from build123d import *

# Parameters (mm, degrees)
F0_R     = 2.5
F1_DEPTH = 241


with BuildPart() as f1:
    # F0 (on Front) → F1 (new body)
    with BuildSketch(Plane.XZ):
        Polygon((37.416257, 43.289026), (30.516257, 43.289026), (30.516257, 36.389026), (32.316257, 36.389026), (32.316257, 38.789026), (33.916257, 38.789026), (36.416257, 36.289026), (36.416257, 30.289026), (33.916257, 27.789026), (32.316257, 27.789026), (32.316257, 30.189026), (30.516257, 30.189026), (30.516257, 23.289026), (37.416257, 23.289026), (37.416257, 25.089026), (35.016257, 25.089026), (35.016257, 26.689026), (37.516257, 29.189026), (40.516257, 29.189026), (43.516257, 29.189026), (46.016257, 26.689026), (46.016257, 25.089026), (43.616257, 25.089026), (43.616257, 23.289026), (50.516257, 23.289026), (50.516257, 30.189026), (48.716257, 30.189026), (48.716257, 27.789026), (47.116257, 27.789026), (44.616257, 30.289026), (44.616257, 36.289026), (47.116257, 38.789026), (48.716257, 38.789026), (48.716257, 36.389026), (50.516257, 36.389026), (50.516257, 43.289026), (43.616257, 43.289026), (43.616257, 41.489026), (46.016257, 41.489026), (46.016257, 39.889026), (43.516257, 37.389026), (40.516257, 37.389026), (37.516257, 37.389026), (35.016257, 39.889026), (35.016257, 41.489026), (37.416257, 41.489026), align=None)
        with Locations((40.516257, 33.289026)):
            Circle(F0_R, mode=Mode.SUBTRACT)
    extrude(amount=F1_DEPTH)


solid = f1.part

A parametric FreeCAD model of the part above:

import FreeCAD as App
import Part
import Sketcher
from FreeCAD import Vector
Q = App.Units.Quantity

doc = App.newDocument("Part")
body = doc.addObject("PartDesign::Body", "Body")

# Sketch on XZ plane
sketch1 = doc.addObject("Sketcher::SketchObject", "Sketch")
body.addObject(sketch1)
sketch1.AttachmentSupport = (doc.XZ_Plane, [""])
sketch1.MapMode = "FlatFace"
sketch1.addGeometry([
    Part.LineSegment(Vector(37.4, 43.3, 0), Vector(30.5, 43.3, 0)),  # 0
    Part.LineSegment(Vector(30.5, 43.3, 0), Vector(30.5, 36.4, 0)),  # 1
    Part.LineSegment(Vector(30.5, 36.4, 0), Vector(32.3, 36.4, 0)),  # 2
    Part.LineSegment(Vector(32.3, 36.4, 0), Vector(32.3, 38.8, 0)),  # 3
    Part.LineSegment(Vector(32.3, 38.8, 0), Vector(33.9, 38.8, 0)),  # 4
    Part.LineSegment(Vector(33.9, 38.8, 0), Vector(36.4, 36.3, 0)),  # 5
    Part.LineSegment(Vector(36.4, 36.3, 0), Vector(36.4, 30.3, 0)),  # 6
    Part.LineSegment(Vector(36.4, 30.3, 0), Vector(33.9, 27.8, 0)),  # 7
    Part.LineSegment(Vector(33.9, 27.8, 0), Vector(32.3, 27.8, 0)),  # 8
    Part.LineSegment(Vector(32.3, 27.8, 0), Vector(32.3, 30.2, 0)),  # 9
    Part.LineSegment(Vector(32.3, 30.2, 0), Vector(30.5, 30.2, 0)),  # 10
    Part.LineSegment(Vector(30.5, 30.2, 0), Vector(30.5, 23.3, 0)),  # 11
    Part.LineSegment(Vector(30.5, 23.3, 0), Vector(37.4, 23.3, 0)),  # 12
    Part.LineSegment(Vector(37.4, 23.3, 0), Vector(37.4, 25.1, 0)),  # 13
    Part.LineSegment(Vector(37.4, 25.1, 0), Vector(35, 25.1, 0)),  # 14
    Part.LineSegment(Vector(35, 25.1, 0), Vector(35, 26.7, 0)),  # 15
    Part.LineSegment(Vector(35, 26.7, 0), Vector(37.5, 29.2, 0)),  # 16
    Part.LineSegment(Vector(37.5, 29.2, 0), Vector(43.5, 29.2, 0)),  # 17
    Part.LineSegment(Vector(43.5, 29.2, 0), Vector(46, 26.7, 0)),  # 18
    Part.LineSegment(Vector(46, 26.7, 0), Vector(46, 25.1, 0)),  # 19
    Part.LineSegment(Vector(46, 25.1, 0), Vector(43.6, 25.1, 0)),  # 20
    Part.LineSegment(Vector(43.6, 25.1, 0), Vector(43.6, 23.3, 0)),  # 21
    Part.LineSegment(Vector(43.6, 23.3, 0), Vector(50.5, 23.3, 0)),  # 22
    Part.LineSegment(Vector(50.5, 23.3, 0), Vector(50.5, 30.2, 0)),  # 23
    Part.LineSegment(Vector(50.5, 30.2, 0), Vector(48.7, 30.2, 0)),  # 24
    Part.LineSegment(Vector(48.7, 30.2, 0), Vector(48.7, 27.8, 0)),  # 25
    Part.LineSegment(Vector(48.7, 27.8, 0), Vector(47.1, 27.8, 0)),  # 26
    Part.LineSegment(Vector(47.1, 27.8, 0), Vector(44.6, 30.3, 0)),  # 27
    Part.LineSegment(Vector(44.6, 30.3, 0), Vector(44.6, 36.3, 0)),  # 28
    Part.LineSegment(Vector(44.6, 36.3, 0), Vector(47.1, 38.8, 0)),  # 29
    Part.LineSegment(Vector(47.1, 38.8, 0), Vector(48.7, 38.8, 0)),  # 30
    Part.LineSegment(Vector(48.7, 38.8, 0), Vector(48.7, 36.4, 0)),  # 31
    Part.LineSegment(Vector(48.7, 36.4, 0), Vector(50.5, 36.4, 0)),  # 32
    Part.LineSegment(Vector(50.5, 36.4, 0), Vector(50.5, 43.3, 0)),  # 33
    Part.LineSegment(Vector(50.5, 43.3, 0), Vector(43.6, 43.3, 0)),  # 34
    Part.LineSegment(Vector(43.6, 43.3, 0), Vector(43.6, 41.5, 0)),  # 35
    Part.LineSegment(Vector(43.6, 41.5, 0), Vector(46, 41.5, 0)),  # 36
    Part.LineSegment(Vector(46, 41.5, 0), Vector(46, 39.9, 0)),  # 37
    Part.LineSegment(Vector(46, 39.9, 0), Vector(43.5, 37.4, 0)),  # 38
    Part.LineSegment(Vector(43.5, 37.4, 0), Vector(37.5, 37.4, 0)),  # 39
    Part.LineSegment(Vector(37.5, 37.4, 0), Vector(35, 39.9, 0)),  # 40
    Part.LineSegment(Vector(35, 39.9, 0), Vector(35, 41.5, 0)),  # 41
    Part.LineSegment(Vector(35, 41.5, 0), Vector(37.4, 41.5, 0)),  # 42
    Part.LineSegment(Vector(37.4, 41.5, 0), Vector(37.4, 43.3, 0)),  # 43
    Part.Circle(Vector(40.5, 33.3, 0), Vector(0, 0, 1), 2.5),  # 44
], False)
sketch1.addConstraint([
    Sketcher.Constraint("Coincident", 0, 2, 1, 1),
    Sketcher.Constraint("Coincident", 1, 2, 2, 1),
    Sketcher.Constraint("Coincident", 2, 2, 3, 1),
    Sketcher.Constraint("Coincident", 3, 2, 4, 1),
    Sketcher.Constraint("Coincident", 4, 2, 5, 1),
    Sketcher.Constraint("Coincident", 5, 2, 6, 1),
    Sketcher.Constraint("Coincident", 6, 2, 7, 1),
    Sketcher.Constraint("Coincident", 7, 2, 8, 1),
    Sketcher.Constraint("Coincident", 8, 2, 9, 1),
    Sketcher.Constraint("Coincident", 9, 2, 10, 1),
    Sketcher.Constraint("Coincident", 10, 2, 11, 1),
    Sketcher.Constraint("Coincident", 11, 2, 12, 1),
    Sketcher.Constraint("Coincident", 12, 2, 13, 1),
    Sketcher.Constraint("Coincident", 13, 2, 14, 1),
    Sketcher.Constraint("Coincident", 14, 2, 15, 1),
    Sketcher.Constraint("Coincident", 15, 2, 16, 1),
    Sketcher.Constraint("Coincident", 16, 2, 17, 1),
    Sketcher.Constraint("Coincident", 17, 2, 18, 1),
    Sketcher.Constraint("Coincident", 18, 2, 19, 1),
    Sketcher.Constraint("Coincident", 19, 2, 20, 1),
    Sketcher.Constraint("Coincident", 20, 2, 21, 1),
    Sketcher.Constraint("Coincident", 21, 2, 22, 1),
    Sketcher.Constraint("Coincident", 22, 2, 23, 1),
    Sketcher.Constraint("Coincident", 23, 2, 24, 1),
    Sketcher.Constraint("Coincident", 24, 2, 25, 1),
    Sketcher.Constraint("Coincident", 25, 2, 26, 1),
    Sketcher.Constraint("Coincident", 26, 2, 27, 1),
    Sketcher.Constraint("Coincident", 27, 2, 28, 1),
    Sketcher.Constraint("Coincident", 28, 2, 29, 1),
    Sketcher.Constraint("Coincident", 29, 2, 30, 1),
    Sketcher.Constraint("Coincident", 30, 2, 31, 1),
    Sketcher.Constraint("Coincident", 31, 2, 32, 1),
    Sketcher.Constraint("Coincident", 32, 2, 33, 1),
    Sketcher.Constraint("Coincident", 33, 2, 34, 1),
    Sketcher.Constraint("Coincident", 34, 2, 35, 1),
    Sketcher.Constraint("Coincident", 35, 2, 36, 1),
    Sketcher.Constraint("Coincident", 36, 2, 37, 1),
    Sketcher.Constraint("Coincident", 37, 2, 38, 1),
    Sketcher.Constraint("Coincident", 38, 2, 39, 1),
    Sketcher.Constraint("Coincident", 39, 2, 40, 1),
    Sketcher.Constraint("Coincident", 40, 2, 41, 1),
    Sketcher.Constraint("Coincident", 41, 2, 42, 1),
    Sketcher.Constraint("Coincident", 42, 2, 43, 1),
    Sketcher.Constraint("Coincident", 43, 2, 0, 1),
    Sketcher.Constraint("Horizontal", 0),
    Sketcher.Constraint("Vertical", 1),
    Sketcher.Constraint("Horizontal", 2),
    Sketcher.Constraint("Vertical", 3),
    Sketcher.Constraint("Horizontal", 4),
    Sketcher.Constraint("Vertical", 6),
    Sketcher.Constraint("Horizontal", 8),
    Sketcher.Constraint("Vertical", 9),
    Sketcher.Constraint("Horizontal", 10),
    Sketcher.Constraint("Vertical", 11),
    Sketcher.Constraint("Horizontal", 12),
    Sketcher.Constraint("Vertical", 13),
    Sketcher.Constraint("Horizontal", 14),
    Sketcher.Constraint("Vertical", 15),
    Sketcher.Constraint("Horizontal", 17),
    Sketcher.Constraint("Vertical", 19),
    Sketcher.Constraint("Horizontal", 20),
    Sketcher.Constraint("Vertical", 21),
    Sketcher.Constraint("Horizontal", 22),
    Sketcher.Constraint("Vertical", 23),
    Sketcher.Constraint("Horizontal", 24),
    Sketcher.Constraint("Vertical", 25),
    Sketcher.Constraint("Horizontal", 26),
    Sketcher.Constraint("Vertical", 28),
    Sketcher.Constraint("Horizontal", 30),
    Sketcher.Constraint("Vertical", 31),
    Sketcher.Constraint("Horizontal", 32),
    Sketcher.Constraint("Vertical", 33),
    Sketcher.Constraint("Horizontal", 34),
    Sketcher.Constraint("Vertical", 35),
    Sketcher.Constraint("Horizontal", 36),
    Sketcher.Constraint("Vertical", 37),
    Sketcher.Constraint("Horizontal", 39),
    Sketcher.Constraint("Vertical", 41),
    Sketcher.Constraint("Horizontal", 42),
    Sketcher.Constraint("Vertical", 43),
    Sketcher.Constraint("Perpendicular", 5, 7),
    Sketcher.Constraint("Parallel", 7, 16),
    Sketcher.Constraint("Perpendicular", 16, 18),
    Sketcher.Constraint("Parallel", 18, 27),
    Sketcher.Constraint("Perpendicular", 27, 29),
    Sketcher.Constraint("Parallel", 29, 38),
    Sketcher.Constraint("Perpendicular", 38, 40),
    Sketcher.Constraint("Horizontal", 15, 2, 18, 2),
    Sketcher.Constraint("Horizontal", 14, 2, 19, 2),
    Sketcher.Constraint("Horizontal", 12, 2, 21, 2),
    Sketcher.Constraint("Horizontal", 10, 2, 23, 2),
    Sketcher.Constraint("Horizontal", 8, 2, 25, 2),
    Sketcher.Constraint("Horizontal", 6, 2, 27, 2),
    Sketcher.Constraint("Horizontal", 5, 2, 28, 2),
    Sketcher.Constraint("Horizontal", 4, 2, 29, 2),
    Sketcher.Constraint("Horizontal", 2, 2, 31, 2),
    Sketcher.Constraint("Horizontal", 0, 2, 33, 2),
    Sketcher.Constraint("Horizontal", 37, 2, 40, 2),
    Sketcher.Constraint("Horizontal", 36, 2, 41, 2),
    Sketcher.Constraint("Vertical", 4, 2, 7, 2),
    Sketcher.Constraint("Vertical", 3, 2, 8, 2),
    Sketcher.Constraint("Vertical", 1, 2, 10, 2),
    Sketcher.Constraint("Vertical", 26, 2, 29, 2),
    Sketcher.Constraint("Vertical", 25, 2, 30, 2),
    Sketcher.Constraint("Vertical", 23, 2, 32, 2),
    Sketcher.Constraint("Vertical", 21, 2, 34, 2),
    Sketcher.Constraint("Vertical", 19, 2, 36, 2),
    Sketcher.Constraint("Vertical", 17, 2, 38, 2),
    Sketcher.Constraint("Vertical", 16, 2, 39, 2),
    Sketcher.Constraint("Vertical", 13, 2, 42, 2),
    Sketcher.Constraint("Equal", 14, 20),
    Sketcher.Constraint("Equal", 12, 22),
    Sketcher.Constraint("Equal", 10, 24),
    Sketcher.Constraint("Equal", 8, 26),
    Sketcher.Constraint("Equal", 34, 1),
    Sketcher.Constraint("Equal", 42, 3),
    Sketcher.Constraint("Equal", 39, 6),
    Sketcher.Constraint("Equal", 3, 9),
    Sketcher.Constraint("Equal", 1, 11),
    Sketcher.Constraint("Equal", 32, 13),
    Sketcher.Constraint("Equal", 30, 15),
    Sketcher.Constraint("Equal", 21, 35),
    Sketcher.Constraint("Equal", 19, 37),
    Sketcher.Constraint("Equal", 7, 16),
    Sketcher.Constraint("Diameter", 44, Q("5 mm")),
    Sketcher.Constraint("DistanceX", 17, 1, 17, 2, Q("6 mm")),
    Sketcher.Constraint("DistanceX", 0, 2, 0, 1, Q("6.9 mm")),
    Sketcher.Constraint("DistanceX", 2, 1, 2, 2, Q("1.8 mm")),
    Sketcher.Constraint("DistanceX", 4, 1, 4, 2, Q("1.6 mm")),
    Sketcher.Constraint("DistanceX", 14, 2, 14, 1, Q("2.4 mm")),
    Sketcher.Constraint("DistanceX", 0, 2, 44, 3, Q("10 mm")),
    Sketcher.Constraint("DistanceY", 44, 3, 0, 2, Q("10 mm")),
    Sketcher.Constraint("DistanceY", 44, 3, 5, 2, Q("3 mm")),
    Sketcher.Constraint("DistanceX", -1, 1, 44, 3, Q("40.516257 mm")),
    Sketcher.Constraint("DistanceY", -1, 1, 44, 3, Q("33.289026 mm")),
])
pad1 = doc.addObject("PartDesign::Pad", "Pad")
body.addObject(pad1)
pad1.Profile = sketch1
pad1.Length = 241

doc.recompute()
